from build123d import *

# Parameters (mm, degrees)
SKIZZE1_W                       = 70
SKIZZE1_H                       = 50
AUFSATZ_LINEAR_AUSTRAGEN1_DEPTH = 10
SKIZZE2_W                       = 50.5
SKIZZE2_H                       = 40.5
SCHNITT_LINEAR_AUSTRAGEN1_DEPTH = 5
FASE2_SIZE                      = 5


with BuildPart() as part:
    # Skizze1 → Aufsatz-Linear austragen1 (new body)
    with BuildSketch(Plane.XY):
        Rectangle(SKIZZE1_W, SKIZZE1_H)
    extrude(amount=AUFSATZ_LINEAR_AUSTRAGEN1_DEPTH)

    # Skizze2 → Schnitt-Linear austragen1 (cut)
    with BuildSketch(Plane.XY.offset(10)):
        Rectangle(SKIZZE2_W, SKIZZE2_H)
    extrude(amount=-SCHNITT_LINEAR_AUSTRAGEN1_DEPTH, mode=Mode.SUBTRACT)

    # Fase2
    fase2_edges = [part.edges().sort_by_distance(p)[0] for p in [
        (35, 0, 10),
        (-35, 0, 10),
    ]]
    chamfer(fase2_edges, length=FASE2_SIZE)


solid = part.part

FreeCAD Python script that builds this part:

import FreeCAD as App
import Part
import Sketcher
from FreeCAD import Vector


def edges_at(feature, points):
    """Names of the edges that pass closest to the given points."""
    edges = feature.Shape.Edges
    near = lambda p: min(range(len(edges)), key=lambda i: edges[i].distToShape(Part.Vertex(*p))[0])
    return sorted({f"Edge{near(p) + 1}" for p in points})


def add_polygon(sketch, points):
    """Adds a closed chain of lines whose ends are joined by coincident constraints."""
    first, n = sketch.GeometryCount, len(points)
    for a, b in zip(points, points[1:] + points[:1]):
        sketch.addGeometry(Part.LineSegment(App.Vector(*a, 0), App.Vector(*b, 0)), False)
    for i in range(n):
        sketch.addConstraint(Sketcher.Constraint("Coincident", first + i, 2, first + (i + 1) % n, 1))

doc = App.newDocument("Part")
body = doc.addObject("PartDesign::Body", "Body")

sketch1 = body.newObject("Sketcher::SketchObject", "Sketch")
sketch1.AttachmentSupport = (doc.getObject("XY_Plane"), [""])
sketch1.MapMode = "FlatFace"
add_polygon(sketch1, [(-35, 25), (-35, -25), (35, -25), (35, 25)])
sketch1.addConstraint([
    Sketcher.Constraint("Vertical", 0),
    Sketcher.Constraint("Horizontal", 1),
    Sketcher.Constraint("Vertical", 2),
    Sketcher.Constraint("Horizontal", 3),
    Sketcher.Constraint("Symmetric", 0, 2, 2, 2, -1, 1),
    Sketcher.Constraint("DistanceX", 1, 1, 1, 2, 70.0),
    Sketcher.Constraint("DistanceY", 0, 2, 0, 1, 50.0),
])
pad1 = body.newObject("PartDesign::Pad", "Pad")
pad1.Profile = sketch1
pad1.Length = 10

sketch2 = body.newObject("Sketcher::SketchObject", "Sketch001")
sketch2.AttachmentSupport = (doc.getObject("XY_Plane"), [""])
sketch2.MapMode = "FlatFace"
sketch2.AttachmentOffset = App.Placement(Vector(0, 0, 10), App.Rotation())
add_polygon(sketch2, [(-25, 20), (-25, -20), (25, -20), (25, 20)])
sketch2.addConstraint([
    Sketcher.Constraint("Vertical", 0),
    Sketcher.Constraint("Horizontal", 1),
    Sketcher.Constraint("Vertical", 2),
    Sketcher.Constraint("Horizontal", 3),
    Sketcher.Constraint("Symmetric", 0, 2, 2, 2, -1, 1),
    Sketcher.Constraint("DistanceX", 1, 1, 1, 2, 50.5),
    Sketcher.Constraint("DistanceY", 0, 2, 0, 1, 40.5),
])
pocket1 = body.newObject("PartDesign::Pocket", "Pocket")
pocket1.Profile = sketch2
pocket1.Length = 5
doc.recompute()

chamfer = body.newObject("PartDesign::Chamfer", "Chamfer")
chamfer.Base = (pocket1, edges_at(pocket1, [(35, 0, 10), (-35, 0, 10)]))
chamfer.Size = 5

doc.recompute()
